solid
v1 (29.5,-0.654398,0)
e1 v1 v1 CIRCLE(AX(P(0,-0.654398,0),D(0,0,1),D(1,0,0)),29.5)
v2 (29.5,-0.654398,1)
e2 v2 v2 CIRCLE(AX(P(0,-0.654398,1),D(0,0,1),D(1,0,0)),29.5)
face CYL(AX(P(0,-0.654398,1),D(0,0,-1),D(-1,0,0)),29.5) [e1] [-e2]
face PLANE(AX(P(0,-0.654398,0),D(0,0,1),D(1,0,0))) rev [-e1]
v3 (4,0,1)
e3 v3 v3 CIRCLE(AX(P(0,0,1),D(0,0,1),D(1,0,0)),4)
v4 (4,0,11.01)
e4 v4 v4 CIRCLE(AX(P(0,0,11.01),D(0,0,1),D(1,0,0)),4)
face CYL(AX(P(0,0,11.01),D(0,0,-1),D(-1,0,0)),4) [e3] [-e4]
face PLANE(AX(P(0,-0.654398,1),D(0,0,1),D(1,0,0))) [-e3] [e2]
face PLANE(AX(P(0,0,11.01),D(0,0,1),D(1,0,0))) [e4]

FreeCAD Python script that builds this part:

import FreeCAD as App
import Part
import Sketcher
Q = App.Units.Quantity

doc = App.newDocument("Part")
body = doc.addObject("PartDesign::Body", "Body")

sketch1 = body.newObject("Sketcher::SketchObject", "Sketch")
sketch1.AttachmentSupport = (doc.getObject("XY_Plane"), [""])
sketch1.MapMode = "FlatFace"
sketch1.addGeometry(Part.Circle(App.Vector(0, -1, 0), App.Vector(0, 0, 1), 30), False)
sketch1.addConstraint(Sketcher.Constraint("PointOnObject", 0, 3, -2))
sketch1.addConstraint(Sketcher.Constraint("Diameter", 0, Q("59 mm")))
sketch1.addConstraint(Sketcher.Constraint("DistanceY", 0, 3, -1, 1, Q("0.654398 mm")))
pad1 = body.newObject("PartDesign::Pad", "Pad")
pad1.Profile = sketch1
pad1.Length = 1

sketch2 = body.newObject("Sketcher::SketchObject", "Sketch001")
sketch2.AttachmentSupport = (doc.getObject("XY_Plane"), [""])
sketch2.MapMode = "FlatFace"
sketch2.AttachmentOffset = App.Placement(App.Vector(0, 0, 1), App.Rotation())
sketch2.addGeometry(Part.Circle(App.Vector(0, 0, 0), App.Vector(0, 0, 1), 4), False)
sketch2.addConstraint(Sketcher.Constraint("Coincident", 0, 3, -1, 1))
sketch2.addConstraint(Sketcher.Constraint("Diameter", 0, Q("8 mm")))
pad2 = body.newObject("PartDesign::Pad", "Pad001")
pad2.Profile = sketch2
pad2.Length = 10.01

doc.recompute()
